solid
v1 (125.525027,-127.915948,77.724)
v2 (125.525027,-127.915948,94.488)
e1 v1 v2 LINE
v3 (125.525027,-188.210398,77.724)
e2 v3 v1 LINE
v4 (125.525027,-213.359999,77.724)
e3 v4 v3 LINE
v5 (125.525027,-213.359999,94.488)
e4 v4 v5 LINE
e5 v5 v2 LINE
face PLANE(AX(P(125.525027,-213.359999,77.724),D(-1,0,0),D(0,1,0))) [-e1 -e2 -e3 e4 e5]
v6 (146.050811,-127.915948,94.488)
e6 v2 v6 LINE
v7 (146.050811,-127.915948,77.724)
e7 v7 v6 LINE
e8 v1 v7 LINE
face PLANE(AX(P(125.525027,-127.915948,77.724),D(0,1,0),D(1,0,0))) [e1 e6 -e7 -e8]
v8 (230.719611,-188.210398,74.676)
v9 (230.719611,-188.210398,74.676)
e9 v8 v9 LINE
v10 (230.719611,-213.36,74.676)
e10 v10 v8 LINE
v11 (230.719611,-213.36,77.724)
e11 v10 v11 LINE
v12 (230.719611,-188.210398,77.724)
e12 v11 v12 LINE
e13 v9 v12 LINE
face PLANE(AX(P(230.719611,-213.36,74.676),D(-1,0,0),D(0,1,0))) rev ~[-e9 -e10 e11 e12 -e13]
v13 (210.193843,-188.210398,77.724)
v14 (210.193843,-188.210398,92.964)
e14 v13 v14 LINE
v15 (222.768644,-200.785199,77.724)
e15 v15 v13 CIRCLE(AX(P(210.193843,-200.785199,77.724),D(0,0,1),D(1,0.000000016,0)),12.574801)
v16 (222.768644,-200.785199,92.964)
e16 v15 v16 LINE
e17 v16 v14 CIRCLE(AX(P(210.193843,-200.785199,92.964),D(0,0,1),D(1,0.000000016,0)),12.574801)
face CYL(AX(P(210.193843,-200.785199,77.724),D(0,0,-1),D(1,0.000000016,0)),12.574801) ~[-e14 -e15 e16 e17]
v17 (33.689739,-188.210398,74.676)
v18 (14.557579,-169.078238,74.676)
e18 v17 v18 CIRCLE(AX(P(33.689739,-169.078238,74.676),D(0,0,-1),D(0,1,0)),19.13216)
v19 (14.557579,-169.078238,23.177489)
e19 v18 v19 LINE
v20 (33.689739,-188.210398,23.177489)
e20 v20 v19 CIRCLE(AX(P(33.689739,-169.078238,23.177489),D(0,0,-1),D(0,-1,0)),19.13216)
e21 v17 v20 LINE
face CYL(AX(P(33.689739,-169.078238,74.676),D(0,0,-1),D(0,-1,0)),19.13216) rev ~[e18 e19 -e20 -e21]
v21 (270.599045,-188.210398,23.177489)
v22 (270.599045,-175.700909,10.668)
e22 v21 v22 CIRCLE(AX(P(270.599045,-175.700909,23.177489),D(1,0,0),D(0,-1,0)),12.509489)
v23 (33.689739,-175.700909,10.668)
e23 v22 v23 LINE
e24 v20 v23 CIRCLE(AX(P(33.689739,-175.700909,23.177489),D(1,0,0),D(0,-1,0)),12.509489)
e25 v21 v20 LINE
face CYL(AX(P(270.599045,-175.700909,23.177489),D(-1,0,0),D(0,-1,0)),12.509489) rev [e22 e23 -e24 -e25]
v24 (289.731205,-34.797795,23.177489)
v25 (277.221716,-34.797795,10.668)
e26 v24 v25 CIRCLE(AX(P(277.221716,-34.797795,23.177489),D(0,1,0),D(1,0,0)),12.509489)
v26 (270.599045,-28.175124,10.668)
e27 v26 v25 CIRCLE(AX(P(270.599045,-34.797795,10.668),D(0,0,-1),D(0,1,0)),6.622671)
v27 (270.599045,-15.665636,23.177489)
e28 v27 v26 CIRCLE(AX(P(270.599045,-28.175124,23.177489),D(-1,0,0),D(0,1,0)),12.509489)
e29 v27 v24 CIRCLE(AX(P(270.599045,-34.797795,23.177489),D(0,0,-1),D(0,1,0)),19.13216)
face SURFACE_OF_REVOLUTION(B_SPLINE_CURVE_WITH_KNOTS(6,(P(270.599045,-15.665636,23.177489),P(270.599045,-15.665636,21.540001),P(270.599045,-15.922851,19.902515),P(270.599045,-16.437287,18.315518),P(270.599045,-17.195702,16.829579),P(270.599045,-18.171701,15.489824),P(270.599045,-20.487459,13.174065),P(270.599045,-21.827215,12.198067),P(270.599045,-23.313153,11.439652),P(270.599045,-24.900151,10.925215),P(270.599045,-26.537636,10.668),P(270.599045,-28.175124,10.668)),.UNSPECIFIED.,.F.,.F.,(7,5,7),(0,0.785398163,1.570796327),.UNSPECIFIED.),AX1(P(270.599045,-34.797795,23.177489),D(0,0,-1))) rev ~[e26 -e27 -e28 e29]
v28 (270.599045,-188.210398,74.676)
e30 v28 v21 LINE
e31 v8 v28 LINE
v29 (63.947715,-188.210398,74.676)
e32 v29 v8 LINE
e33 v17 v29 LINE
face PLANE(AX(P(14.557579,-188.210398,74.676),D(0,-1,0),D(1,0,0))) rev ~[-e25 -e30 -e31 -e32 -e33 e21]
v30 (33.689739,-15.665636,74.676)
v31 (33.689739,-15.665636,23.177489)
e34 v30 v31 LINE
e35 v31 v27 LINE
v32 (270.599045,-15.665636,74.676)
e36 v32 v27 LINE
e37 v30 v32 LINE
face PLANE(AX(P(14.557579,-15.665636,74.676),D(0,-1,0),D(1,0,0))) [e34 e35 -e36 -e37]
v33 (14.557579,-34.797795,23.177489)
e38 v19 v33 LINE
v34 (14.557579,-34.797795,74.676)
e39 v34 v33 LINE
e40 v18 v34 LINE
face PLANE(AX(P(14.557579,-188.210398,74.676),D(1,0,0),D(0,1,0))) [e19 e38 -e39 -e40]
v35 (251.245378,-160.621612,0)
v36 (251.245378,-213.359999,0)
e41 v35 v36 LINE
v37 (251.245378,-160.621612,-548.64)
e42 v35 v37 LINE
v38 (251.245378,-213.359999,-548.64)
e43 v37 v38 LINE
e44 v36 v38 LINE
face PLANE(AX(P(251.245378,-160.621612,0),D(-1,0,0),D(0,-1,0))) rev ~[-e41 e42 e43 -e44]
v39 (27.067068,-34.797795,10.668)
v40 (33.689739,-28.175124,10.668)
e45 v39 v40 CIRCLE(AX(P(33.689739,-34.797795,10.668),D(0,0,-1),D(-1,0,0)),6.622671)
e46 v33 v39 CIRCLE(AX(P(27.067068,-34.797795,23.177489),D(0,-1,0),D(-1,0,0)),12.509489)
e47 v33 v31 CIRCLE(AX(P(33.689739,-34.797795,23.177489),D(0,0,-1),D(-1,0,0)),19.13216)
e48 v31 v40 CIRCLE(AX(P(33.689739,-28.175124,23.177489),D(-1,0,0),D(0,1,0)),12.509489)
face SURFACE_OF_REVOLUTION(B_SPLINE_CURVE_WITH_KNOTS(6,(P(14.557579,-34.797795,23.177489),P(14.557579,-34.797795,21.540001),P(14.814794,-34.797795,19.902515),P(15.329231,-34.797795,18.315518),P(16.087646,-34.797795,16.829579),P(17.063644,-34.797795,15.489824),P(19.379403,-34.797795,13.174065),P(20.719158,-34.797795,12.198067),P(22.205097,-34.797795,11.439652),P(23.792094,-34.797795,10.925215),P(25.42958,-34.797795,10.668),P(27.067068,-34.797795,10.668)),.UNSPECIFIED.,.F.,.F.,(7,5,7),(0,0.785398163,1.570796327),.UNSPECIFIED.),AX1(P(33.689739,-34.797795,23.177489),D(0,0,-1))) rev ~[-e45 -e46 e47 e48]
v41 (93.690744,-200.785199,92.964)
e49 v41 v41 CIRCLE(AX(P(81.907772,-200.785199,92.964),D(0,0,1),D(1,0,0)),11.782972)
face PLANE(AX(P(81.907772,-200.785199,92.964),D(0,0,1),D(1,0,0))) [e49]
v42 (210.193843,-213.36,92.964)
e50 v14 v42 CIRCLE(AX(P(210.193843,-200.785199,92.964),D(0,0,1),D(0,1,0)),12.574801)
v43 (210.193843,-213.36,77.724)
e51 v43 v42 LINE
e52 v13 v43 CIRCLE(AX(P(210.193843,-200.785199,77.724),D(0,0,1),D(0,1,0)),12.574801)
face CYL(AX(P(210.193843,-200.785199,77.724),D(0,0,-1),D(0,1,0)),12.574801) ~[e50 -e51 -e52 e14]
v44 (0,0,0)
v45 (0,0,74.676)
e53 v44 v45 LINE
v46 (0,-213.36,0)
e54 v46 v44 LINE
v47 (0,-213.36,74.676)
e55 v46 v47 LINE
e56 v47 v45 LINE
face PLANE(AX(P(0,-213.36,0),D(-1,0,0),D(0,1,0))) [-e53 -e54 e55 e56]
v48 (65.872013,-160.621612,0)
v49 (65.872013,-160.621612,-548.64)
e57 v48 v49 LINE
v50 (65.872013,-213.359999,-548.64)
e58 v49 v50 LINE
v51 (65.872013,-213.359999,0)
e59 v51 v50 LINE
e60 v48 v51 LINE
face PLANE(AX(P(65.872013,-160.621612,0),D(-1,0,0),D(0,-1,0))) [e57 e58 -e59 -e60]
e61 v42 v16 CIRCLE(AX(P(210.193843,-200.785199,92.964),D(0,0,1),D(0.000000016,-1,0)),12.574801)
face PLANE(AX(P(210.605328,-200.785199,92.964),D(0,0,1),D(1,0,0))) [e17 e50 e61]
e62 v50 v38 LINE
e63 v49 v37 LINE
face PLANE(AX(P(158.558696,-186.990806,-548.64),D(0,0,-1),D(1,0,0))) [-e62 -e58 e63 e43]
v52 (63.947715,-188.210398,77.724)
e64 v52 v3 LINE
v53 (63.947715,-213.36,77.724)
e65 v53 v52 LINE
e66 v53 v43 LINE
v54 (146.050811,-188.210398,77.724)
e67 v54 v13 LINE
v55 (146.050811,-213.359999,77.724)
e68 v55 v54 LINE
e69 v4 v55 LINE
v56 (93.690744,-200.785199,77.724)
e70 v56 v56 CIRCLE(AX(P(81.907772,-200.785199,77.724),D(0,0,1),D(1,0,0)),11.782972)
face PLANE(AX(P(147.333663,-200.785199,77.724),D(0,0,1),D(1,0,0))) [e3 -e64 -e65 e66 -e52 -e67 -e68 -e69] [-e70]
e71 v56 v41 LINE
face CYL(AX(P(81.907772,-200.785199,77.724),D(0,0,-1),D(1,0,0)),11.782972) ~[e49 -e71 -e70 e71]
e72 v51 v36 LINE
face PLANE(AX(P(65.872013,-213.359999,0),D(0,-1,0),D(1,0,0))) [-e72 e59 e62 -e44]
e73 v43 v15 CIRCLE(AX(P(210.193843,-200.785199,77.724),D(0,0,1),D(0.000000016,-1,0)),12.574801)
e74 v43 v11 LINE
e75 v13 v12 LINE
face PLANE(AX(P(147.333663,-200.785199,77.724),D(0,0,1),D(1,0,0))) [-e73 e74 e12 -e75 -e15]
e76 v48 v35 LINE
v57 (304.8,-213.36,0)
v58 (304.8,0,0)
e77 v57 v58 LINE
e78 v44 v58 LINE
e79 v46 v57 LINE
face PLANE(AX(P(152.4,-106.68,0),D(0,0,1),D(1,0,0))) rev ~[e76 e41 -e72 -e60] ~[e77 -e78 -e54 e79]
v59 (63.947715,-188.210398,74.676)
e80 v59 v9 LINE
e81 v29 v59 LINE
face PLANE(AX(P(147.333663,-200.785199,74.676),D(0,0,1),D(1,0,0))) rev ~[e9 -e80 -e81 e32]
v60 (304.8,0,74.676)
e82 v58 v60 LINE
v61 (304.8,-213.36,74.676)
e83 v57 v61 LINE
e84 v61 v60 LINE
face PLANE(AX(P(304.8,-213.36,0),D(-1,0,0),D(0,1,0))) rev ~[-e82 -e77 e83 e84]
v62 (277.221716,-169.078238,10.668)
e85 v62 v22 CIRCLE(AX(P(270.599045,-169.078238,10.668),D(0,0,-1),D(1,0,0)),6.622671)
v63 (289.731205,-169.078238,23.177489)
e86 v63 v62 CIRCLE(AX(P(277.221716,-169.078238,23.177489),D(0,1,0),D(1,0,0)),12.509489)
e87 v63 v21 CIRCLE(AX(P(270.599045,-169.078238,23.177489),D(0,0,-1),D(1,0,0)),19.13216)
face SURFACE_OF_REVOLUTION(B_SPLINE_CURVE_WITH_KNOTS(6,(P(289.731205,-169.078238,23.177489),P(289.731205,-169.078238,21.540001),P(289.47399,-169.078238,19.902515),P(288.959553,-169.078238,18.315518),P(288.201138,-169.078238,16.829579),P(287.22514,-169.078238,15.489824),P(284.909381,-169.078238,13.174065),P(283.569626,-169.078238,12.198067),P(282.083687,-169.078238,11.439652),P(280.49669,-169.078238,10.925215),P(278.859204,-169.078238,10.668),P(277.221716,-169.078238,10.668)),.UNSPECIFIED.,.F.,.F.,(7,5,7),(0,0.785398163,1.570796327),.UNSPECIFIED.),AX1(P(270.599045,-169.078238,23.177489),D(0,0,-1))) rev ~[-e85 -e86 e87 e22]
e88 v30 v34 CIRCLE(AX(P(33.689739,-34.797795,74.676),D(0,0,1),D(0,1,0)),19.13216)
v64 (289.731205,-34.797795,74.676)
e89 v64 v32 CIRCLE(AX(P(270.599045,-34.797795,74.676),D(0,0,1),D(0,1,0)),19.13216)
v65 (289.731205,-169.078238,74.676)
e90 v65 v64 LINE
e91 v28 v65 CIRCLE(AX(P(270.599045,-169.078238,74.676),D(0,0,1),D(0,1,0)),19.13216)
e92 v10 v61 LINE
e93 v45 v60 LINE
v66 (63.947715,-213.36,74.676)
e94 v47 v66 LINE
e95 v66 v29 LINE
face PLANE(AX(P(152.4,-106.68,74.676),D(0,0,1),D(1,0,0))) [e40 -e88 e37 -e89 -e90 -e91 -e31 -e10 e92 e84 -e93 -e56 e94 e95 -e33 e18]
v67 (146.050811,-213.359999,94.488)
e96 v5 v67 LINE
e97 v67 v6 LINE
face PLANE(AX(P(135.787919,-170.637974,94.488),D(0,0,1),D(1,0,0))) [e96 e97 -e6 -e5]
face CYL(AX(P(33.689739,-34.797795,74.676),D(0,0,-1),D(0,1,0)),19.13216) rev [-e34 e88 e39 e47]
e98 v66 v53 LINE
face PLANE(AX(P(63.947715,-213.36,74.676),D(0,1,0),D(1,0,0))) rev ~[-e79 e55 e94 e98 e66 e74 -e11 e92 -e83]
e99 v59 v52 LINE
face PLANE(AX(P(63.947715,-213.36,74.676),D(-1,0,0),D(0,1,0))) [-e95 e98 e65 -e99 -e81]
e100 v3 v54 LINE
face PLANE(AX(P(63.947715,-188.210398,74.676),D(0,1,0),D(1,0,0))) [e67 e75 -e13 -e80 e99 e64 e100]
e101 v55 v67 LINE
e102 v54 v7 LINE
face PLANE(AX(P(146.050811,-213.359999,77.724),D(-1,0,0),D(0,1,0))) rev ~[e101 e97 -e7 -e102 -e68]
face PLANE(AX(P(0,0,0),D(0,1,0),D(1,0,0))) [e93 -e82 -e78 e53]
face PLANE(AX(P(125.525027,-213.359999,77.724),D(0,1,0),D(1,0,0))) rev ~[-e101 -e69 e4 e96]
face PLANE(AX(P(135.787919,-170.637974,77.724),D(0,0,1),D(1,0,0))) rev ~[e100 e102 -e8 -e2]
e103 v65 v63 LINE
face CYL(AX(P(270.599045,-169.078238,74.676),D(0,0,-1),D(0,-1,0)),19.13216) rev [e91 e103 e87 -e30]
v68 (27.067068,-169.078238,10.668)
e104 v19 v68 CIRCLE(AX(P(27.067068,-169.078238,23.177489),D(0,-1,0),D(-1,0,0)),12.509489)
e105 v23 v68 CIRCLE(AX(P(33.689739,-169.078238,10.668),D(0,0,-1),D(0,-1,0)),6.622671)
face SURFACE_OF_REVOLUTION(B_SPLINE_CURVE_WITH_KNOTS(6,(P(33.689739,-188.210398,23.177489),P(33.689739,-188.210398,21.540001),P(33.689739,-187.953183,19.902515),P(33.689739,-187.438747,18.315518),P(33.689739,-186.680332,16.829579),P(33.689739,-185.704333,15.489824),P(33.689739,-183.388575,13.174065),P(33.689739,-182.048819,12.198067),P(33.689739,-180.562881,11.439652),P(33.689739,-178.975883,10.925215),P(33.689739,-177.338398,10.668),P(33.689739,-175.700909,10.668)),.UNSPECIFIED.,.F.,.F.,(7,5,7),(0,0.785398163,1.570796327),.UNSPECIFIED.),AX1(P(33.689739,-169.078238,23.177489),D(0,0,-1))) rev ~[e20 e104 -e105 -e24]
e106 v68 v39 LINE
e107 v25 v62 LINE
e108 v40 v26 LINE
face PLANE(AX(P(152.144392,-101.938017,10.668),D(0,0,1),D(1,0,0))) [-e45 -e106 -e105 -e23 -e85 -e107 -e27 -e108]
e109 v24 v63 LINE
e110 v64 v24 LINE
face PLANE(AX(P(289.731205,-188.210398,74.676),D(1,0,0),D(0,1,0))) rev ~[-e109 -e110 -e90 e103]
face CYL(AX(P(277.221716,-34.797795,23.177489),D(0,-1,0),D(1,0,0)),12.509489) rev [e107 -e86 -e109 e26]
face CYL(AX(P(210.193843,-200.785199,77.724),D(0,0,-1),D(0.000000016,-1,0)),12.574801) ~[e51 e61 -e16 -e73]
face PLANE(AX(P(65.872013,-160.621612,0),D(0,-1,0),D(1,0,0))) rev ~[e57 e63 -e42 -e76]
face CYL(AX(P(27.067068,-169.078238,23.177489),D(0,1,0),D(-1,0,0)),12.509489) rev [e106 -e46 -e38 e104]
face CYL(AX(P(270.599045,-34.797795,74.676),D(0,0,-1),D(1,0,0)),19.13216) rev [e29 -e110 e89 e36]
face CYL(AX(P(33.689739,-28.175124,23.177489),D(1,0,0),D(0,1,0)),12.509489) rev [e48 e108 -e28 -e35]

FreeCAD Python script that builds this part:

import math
import FreeCAD as App
import Part
import Sketcher

V = App.Vector
Q = App.Units.Quantity


def edges_at(feature, points):
    """Names of the edges that pass closest to the given points."""
    edges = feature.Shape.Edges
    near = lambda p: min(range(len(edges)), key=lambda i: edges[i].distToShape(Part.Vertex(*p))[0])
    return sorted({f"Edge{near(p) + 1}" for p in points})


def add_polygon(sketch, points):
    """Adds a closed chain of lines whose ends are joined by coincident constraints."""
    first, n = sketch.GeometryCount, len(points)
    for a, b in zip(points, points[1:] + points[:1]):
        sketch.addGeometry(Part.LineSegment(App.Vector(*a, 0), App.Vector(*b, 0)), False)
    for i in range(n):
        sketch.addConstraint(Sketcher.Constraint("Coincident", first + i, 2, first + (i + 1) % n, 1))

doc = App.newDocument("Part")
body = doc.addObject("PartDesign::Body", "Body")

# Sketch on XY plane
sketch1 = doc.addObject("Sketcher::SketchObject", "Sketch")
body.addObject(sketch1)
sketch1.AttachmentSupport = (doc.XY_Plane, [""])
sketch1.MapMode = "FlatFace"
add_polygon(sketch1, [(0, 0), (0, -213.36), (304.8, -213.36), (304.8, 0)])  # lines 0-3
sketch1.addConstraint(Sketcher.Constraint("Vertical", 0))
sketch1.addConstraint(Sketcher.Constraint("Horizontal", 1))
sketch1.addConstraint(Sketcher.Constraint("Vertical", 2))
sketch1.addConstraint(Sketcher.Constraint("Horizontal", 3))
sketch1.addConstraint(Sketcher.Constraint("Coincident", 3, 2, -1, 1))
sketch1.addConstraint(Sketcher.Constraint("DistanceX", 1, 1, 1, 2, Q("12 in")))
sketch1.addConstraint(Sketcher.Constraint("DistanceY", 0, 2, 0, 1, Q("8.4 in")))
pad1 = doc.addObject("PartDesign::Pad", "Pad")
body.addObject(pad1)
pad1.Profile = sketch1
pad1.Length = Q("2.94 in")

# Sketch on XY plane
sketch2 = doc.addObject("Sketcher::SketchObject", "Sketch001")
body.addObject(sketch2)
sketch2.AttachmentSupport = (doc.XY_Plane, [""])
sketch2.MapMode = "FlatFace"
add_polygon(sketch2, [(65.872013, -213.359999), (65.872013, -160.621612), (251.245378, -160.621612), (251.245378, -213.359999)])  # lines 0-3
sketch2.addConstraint(Sketcher.Constraint("Vertical", 0))
sketch2.addConstraint(Sketcher.Constraint("Horizontal", 1))
sketch2.addConstraint(Sketcher.Constraint("Vertical", 2))
sketch2.addConstraint(Sketcher.Constraint("Horizontal", 3))
sketch2.addConstraint(Sketcher.Constraint("DistanceY", 2, 2, -1, 1, Q("8.4 in")))
sketch2.addConstraint(Sketcher.Constraint("DistanceX", 1, 1, 1, 2, 185.373365))
sketch2.addConstraint(Sketcher.Constraint("DistanceY", 0, 1, 0, 2, 52.738387))
sketch2.addConstraint(Sketcher.Constraint("DistanceX", -1, 1, 1, 2, 251.245378))
pad2 = doc.addObject("PartDesign::Pad", "Pad001")
body.addObject(pad2)
pad2.Profile = sketch2
pad2.Length = Q("21.6 in")
pad2.Reversed = True

# Sketch on XY plane
sketch3 = doc.addObject("Sketcher::SketchObject", "Sketch002")
body.addObject(sketch3)
sketch3.AttachmentSupport = (doc.XY_Plane, [""])
sketch3.MapMode = "FlatFace"
sketch3.AttachmentOffset = App.Placement(V(0, 0, 2.94 * 25.4), App.Rotation())
add_polygon(sketch3, [(14.557579, -15.665636), (14.557579, -188.210398), (289.731205, -188.210398), (289.731205, -15.665636)])  # lines 0-3
sketch3.addConstraint(Sketcher.Constraint("Vertical", 0))
sketch3.addConstraint(Sketcher.Constraint("Horizontal", 1))
sketch3.addConstraint(Sketcher.Constraint("Vertical", 2))
sketch3.addConstraint(Sketcher.Constraint("Horizontal", 3))
sketch3.addConstraint(Sketcher.Constraint("DistanceY", 0, 2, -1, 1, 188.210398))
sketch3.addConstraint(Sketcher.Constraint("DistanceX", 1, 1, 1, 2, 275.173626))
sketch3.addConstraint(Sketcher.Constraint("DistanceY", 0, 2, 0, 1, 172.544763))
sketch3.addConstraint(Sketcher.Constraint("DistanceX", -1, 1, 0, 2, 14.557579))
pocket1 = doc.addObject("PartDesign::Pocket", "Pocket")
body.addObject(pocket1)
pocket1.Profile = sketch3
pocket1.Length = Q("2.52 in")
doc.recompute()

fillet = doc.addObject("PartDesign::Fillet", "Fillet")
body.addObject(fillet)
fillet.Base = (pocket1, edges_at(pocket1, [
    (289.731, -188.21, 42.672),
    (14.558, -188.21, 42.672),
    (14.558, -15.666, 42.672),
    (289.731, -15.666, 42.672),
]))
fillet.Radius = 19.13216
doc.recompute()

fillet2 = doc.addObject("PartDesign::Fillet", "Fillet001")
body.addObject(fillet2)
fillet2.Base = (fillet, edges_at(fillet, [
    (152.144, -15.666, 10.668),
    (284.128, -21.269, 10.668),
    (20.161, -21.269, 10.668),
    (289.731, -101.938, 10.668),
    (14.558, -101.938, 10.668),
    (284.128, -182.607, 10.668),
    (20.161, -182.607, 10.668),
    (152.144, -188.21, 10.668),
]))
fillet2.Radius = 12.509489

# Sketch on XY plane
sketch4 = doc.addObject("Sketcher::SketchObject", "Sketch003")
body.addObject(sketch4)
sketch4.AttachmentSupport = (doc.XY_Plane, [""])
sketch4.MapMode = "FlatFace"
sketch4.AttachmentOffset = App.Placement(V(0, 0, 2.94 * 25.4), App.Rotation())
add_polygon(sketch4, [(63.947715, -188.210398), (63.947715, -213.36), (230.719611, -213.36), (230.719611, -188.210398)])  # lines 0-3
sketch4.addConstraint(Sketcher.Constraint("Vertical", 0))
sketch4.addConstraint(Sketcher.Constraint("Horizontal", 1))
sketch4.addConstraint(Sketcher.Constraint("Vertical", 2))
sketch4.addConstraint(Sketcher.Constraint("Horizontal", 3))
sketch4.addConstraint(Sketcher.Constraint("DistanceY", 0, 2, -1, 1, Q("8.4 in")))
sketch4.addConstraint(Sketcher.Constraint("DistanceY", 2, 2, -1, 1, 188.210398))
sketch4.addConstraint(Sketcher.Constraint("DistanceX", 1, 1, 1, 2, 166.771896))
sketch4.addConstraint(Sketcher.Constraint("DistanceX", -1, 1, 1, 2, 230.719611))
pad3 = doc.addObject("PartDesign::Pad", "Pad002")
body.addObject(pad3)
pad3.Profile = sketch4
pad3.Length = Q("0.12 in")

# Sketch on XY plane
sketch5 = doc.addObject("Sketcher::SketchObject", "Sketch004")
body.addObject(sketch5)
sketch5.AttachmentSupport = (doc.XY_Plane, [""])
sketch5.MapMode = "FlatFace"
sketch5.AttachmentOffset = App.Placement(V(0, 0, 3.06 * 25.4), App.Rotation())
sketch5.addGeometry(Part.Circle(V(81.907772, -200.785199, 0), V(0, 0, 1), 11.782972), False)
sketch5.addGeometry(Part.ArcOfCircle(Part.Circle(V(210.193843, -200.785199, 0), V(0, 0, 1), 12.574801), math.radians(-89.999999), math.radians(-0.000001)), False)
sketch5.addGeometry(Part.ArcOfCircle(Part.Circle(V(210.193843, -200.785199, 0), V(0, 0, 1), 12.574801), math.radians(0.000001), math.radians(89.999999)), False)
sketch5.addGeometry(Part.ArcOfCircle(Part.Circle(V(210.193843, -200.785199, 0), V(0, 0, 1), 12.574801), math.radians(90), math.radians(270)), False)
sketch5.addConstraint(Sketcher.Constraint("Tangent", 1, 2, 2, 1))
sketch5.addConstraint(Sketcher.Constraint("Tangent", 2, 2, 3, 1))
sketch5.addConstraint(Sketcher.Constraint("Tangent", 3, 2, 1, 1))
sketch5.addConstraint(Sketcher.Constraint("Horizontal", 0, 3, 1, 3))
sketch5.addConstraint(Sketcher.Constraint("Horizontal", 3, 3, 1, 2))
sketch5.addConstraint(Sketcher.Constraint("Vertical", 3, 3, 2, 2))
sketch5.addConstraint(Sketcher.Constraint("Vertical", 2, 2, 3, 2))
sketch5.addConstraint(Sketcher.Constraint("DistanceY", 3, 2, -1, 1, Q("8.4 in")))
sketch5.addConstraint(Sketcher.Constraint("Radius", 1, 12.574801))
sketch5.addConstraint(Sketcher.Constraint("Diameter", 0, 23.565944))
sketch5.addConstraint(Sketcher.Constraint("DistanceX", -1, 1, 0, 3, 81.907772))
sketch5.addConstraint(Sketcher.Constraint("DistanceX", 0, 3, 1, 3, 128.286071))
pad4 = doc.addObject("PartDesign::Pad", "Pad003")
body.addObject(pad4)
pad4.Profile = sketch5
pad4.Length = Q("0.6 in")

# Sketch on XY plane
sketch6 = doc.addObject("Sketcher::SketchObject", "Sketch005")
body.addObject(sketch6)
sketch6.AttachmentSupport = (doc.XY_Plane, [""])
sketch6.MapMode = "FlatFace"
sketch6.AttachmentOffset = App.Placement(V(0, 0, 3.06 * 25.4), App.Rotation())
add_polygon(sketch6, [(125.525027, -127.915948), (125.525027, -213.359999), (146.050811, -213.359999), (146.050811, -127.915948)])  # lines 0-3
sketch6.addConstraint(Sketcher.Constraint("Vertical", 0))
sketch6.addConstraint(Sketcher.Constraint("Horizontal", 1))
sketch6.addConstraint(Sketcher.Constraint("Vertical", 2))
sketch6.addConstraint(Sketcher.Constraint("Horizontal", 3))
sketch6.addConstraint(Sketcher.Constraint("DistanceY", 0, 2, -1, 1, Q("8.4 in")))
sketch6.addConstraint(Sketcher.Constraint("DistanceY", 0, 2, 0, 1, 85.444051))
sketch6.addConstraint(Sketcher.Constraint("DistanceX", 1, 1, 1, 2, 20.525783))
sketch6.addConstraint(Sketcher.Constraint("DistanceX", -1, 1, 1, 2, 146.050811))
pad5 = doc.addObject("PartDesign::Pad", "Pad004")
body.addObject(pad5)
pad5.Profile = sketch6
pad5.Length = Q("0.66 in")

doc.recompute()
